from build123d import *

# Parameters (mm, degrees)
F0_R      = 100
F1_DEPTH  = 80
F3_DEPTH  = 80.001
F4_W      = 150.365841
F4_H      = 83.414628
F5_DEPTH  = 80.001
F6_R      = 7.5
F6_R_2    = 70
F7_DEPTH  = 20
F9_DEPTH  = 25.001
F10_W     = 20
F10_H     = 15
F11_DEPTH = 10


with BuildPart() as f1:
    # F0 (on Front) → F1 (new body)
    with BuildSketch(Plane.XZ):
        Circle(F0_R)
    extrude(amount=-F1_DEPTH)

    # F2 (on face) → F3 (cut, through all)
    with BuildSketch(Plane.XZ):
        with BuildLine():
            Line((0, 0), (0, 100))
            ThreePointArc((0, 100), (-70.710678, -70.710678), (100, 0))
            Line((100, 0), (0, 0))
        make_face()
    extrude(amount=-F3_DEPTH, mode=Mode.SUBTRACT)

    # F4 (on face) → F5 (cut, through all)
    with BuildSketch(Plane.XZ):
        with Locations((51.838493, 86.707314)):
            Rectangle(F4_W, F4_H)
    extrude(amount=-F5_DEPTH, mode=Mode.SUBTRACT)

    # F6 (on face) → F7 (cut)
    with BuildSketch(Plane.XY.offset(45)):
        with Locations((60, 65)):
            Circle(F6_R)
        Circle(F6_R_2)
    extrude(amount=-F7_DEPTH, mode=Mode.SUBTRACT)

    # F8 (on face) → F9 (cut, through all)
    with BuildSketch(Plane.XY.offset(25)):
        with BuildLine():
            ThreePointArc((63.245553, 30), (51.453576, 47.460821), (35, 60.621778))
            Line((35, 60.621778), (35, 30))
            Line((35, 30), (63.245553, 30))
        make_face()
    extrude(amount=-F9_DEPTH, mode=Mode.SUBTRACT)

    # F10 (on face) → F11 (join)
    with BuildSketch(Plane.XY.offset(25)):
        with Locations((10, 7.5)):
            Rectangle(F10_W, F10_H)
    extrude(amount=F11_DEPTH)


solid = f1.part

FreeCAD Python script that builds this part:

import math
import FreeCAD as App
import Part
import Sketcher
Q = App.Units.Quantity


def add_polygon(sketch, points):
    """Adds a closed chain of lines whose ends are joined by coincident constraints."""
    first, n = sketch.GeometryCount, len(points)
    for a, b in zip(points, points[1:] + points[:1]):
        sketch.addGeometry(Part.LineSegment(App.Vector(*a, 0), App.Vector(*b, 0)), False)
    for i in range(n):
        sketch.addConstraint(Sketcher.Constraint("Coincident", first + i, 2, first + (i + 1) % n, 1))

doc = App.newDocument("Part")
body = doc.addObject("PartDesign::Body", "Body")

sketch1 = body.newObject("Sketcher::SketchObject", "Sketch")
sketch1.AttachmentSupport = (doc.getObject("XZ_Plane"), [""])
sketch1.MapMode = "FlatFace"
sketch1.addGeometry(Part.Circle(App.Vector(0, 0, 0), App.Vector(0, 0, 1), 100), False)
sketch1.addConstraint([
    Sketcher.Constraint("Coincident", 0, 3, -1, 1),
    Sketcher.Constraint("Diameter", 0, Q("200 mm")),
])
pad1 = body.newObject("PartDesign::Pad", "Pad")
pad1.Profile = sketch1
pad1.Length = 80
pad1.Reversed = True

sketch2 = body.newObject("Sketcher::SketchObject", "Sketch001")
sketch2.AttachmentSupport = (doc.getObject("XZ_Plane"), [""])
sketch2.MapMode = "FlatFace"
sketch2.addGeometry([
    Part.LineSegment(App.Vector(0, 0, 0), App.Vector(0, 100, 0)),
    Part.ArcOfCircle(Part.Circle(App.Vector(0, 0, 0), App.Vector(0, 0, 1), 100), math.radians(90), math.radians(360)),
    Part.LineSegment(App.Vector(100, 0, 0), App.Vector(0, 0, 0)),
], False)
sketch2.addConstraint([
    Sketcher.Constraint("Coincident", 0, 2, 1, 1),
    Sketcher.Constraint("Coincident", 1, 2, 2, 1),
    Sketcher.Constraint("Coincident", 2, 2, 0, 1),
    Sketcher.Constraint("Vertical", 0),
    Sketcher.Constraint("Horizontal", 2),
    Sketcher.Constraint("Coincident", 1, 3, -1, 1),
    Sketcher.Constraint("Coincident", 2, 2, -1, 1),
    Sketcher.Constraint("Radius", 1, Q("100 mm")),
])
pocket1 = body.newObject("PartDesign::Pocket", "Pocket")
pocket1.Profile = sketch2
pocket1.Type = "ThroughAll"

sketch3 = body.newObject("Sketcher::SketchObject", "Sketch002")
sketch3.AttachmentSupport = (doc.getObject("XZ_Plane"), [""])
sketch3.MapMode = "FlatFace"
add_polygon(sketch3, [(-23, 128), (-23, 45), (127, 45), (127, 128)])
sketch3.addConstraint([
    Sketcher.Constraint("Vertical", 0),
    Sketcher.Constraint("Horizontal", 1),
    Sketcher.Constraint("Vertical", 2),
    Sketcher.Constraint("Horizontal", 3),
    Sketcher.Constraint("DistanceY", -1, 1, 0, 2, Q("45 mm")),
    Sketcher.Constraint("DistanceX", 1, 1, 1, 2, Q("150.365841 mm")),
    Sketcher.Constraint("DistanceY", 0, 2, 0, 1, Q("83.414628 mm")),
    Sketcher.Constraint("DistanceX", 0, 2, -1, 1, Q("23.344427 mm")),
])
pocket2 = body.newObject("PartDesign::Pocket", "Pocket001")
pocket2.Profile = sketch3
pocket2.Type = "ThroughAll"

sketch4 = body.newObject("Sketcher::SketchObject", "Sketch003")
sketch4.AttachmentSupport = (doc.getObject("XY_Plane"), [""])
sketch4.MapMode = "FlatFace"
sketch4.AttachmentOffset = App.Placement(App.Vector(0, 0, 45), App.Rotation())
sketch4.addGeometry([
    Part.Circle(App.Vector(60, 65, 0), App.Vector(0, 0, 1), 8),
    Part.Circle(App.Vector(0, 0, 0), App.Vector(0, 0, 1), 70),
], False)
sketch4.addConstraint([
    Sketcher.Constraint("Coincident", 1, 3, -1, 1),
    Sketcher.Constraint("Diameter", 0, Q("15 mm")),
    Sketcher.Constraint("Diameter", 1, Q("140 mm")),
    Sketcher.Constraint("DistanceX", -1, 1, 0, 3, Q("60 mm")),
    Sketcher.Constraint("DistanceY", -1, 1, 0, 3, Q("65 mm")),
])
pocket3 = body.newObject("PartDesign::Pocket", "Pocket002")
pocket3.Profile = sketch4
pocket3.Length = 20

sketch5 = body.newObject("Sketcher::SketchObject", "Sketch004")
sketch5.AttachmentSupport = (doc.getObject("XY_Plane"), [""])
sketch5.MapMode = "FlatFace"
sketch5.AttachmentOffset = App.Placement(App.Vector(0, 0, 25), App.Rotation())
sketch5.addGeometry([
    Part.ArcOfCircle(Part.Circle(App.Vector(0, 0, 0), App.Vector(0, 0, 1), 70), math.radians(25), math.radians(60)),
    Part.LineSegment(App.Vector(35, 61, 0), App.Vector(35, 30, 0)),
    Part.LineSegment(App.Vector(35, 30, 0), App.Vector(63, 30, 0)),
], False)
sketch5.addConstraint([
    Sketcher.Constraint("Coincident", 0, 2, 1, 1),
    Sketcher.Constraint("Coincident", 1, 2, 2, 1),
    Sketcher.Constraint("Coincident", 2, 2, 0, 1),
    Sketcher.Constraint("Vertical", 1),
    Sketcher.Constraint("Horizontal", 2),
    Sketcher.Constraint("Coincident", 0, 3, -1, 1),
    Sketcher.Constraint("DistanceX", -1, 1, 0, 2, Q("35 mm")),
    Sketcher.Constraint("DistanceY", -1, 1, 1, 2, Q("30 mm")),
    Sketcher.Constraint("Radius", 0, Q("69.999993 mm")),
])
pocket4 = body.newObject("PartDesign::Pocket", "Pocket003")
pocket4.Profile = sketch5
pocket4.Type = "ThroughAll"

sketch6 = body.newObject("Sketcher::SketchObject", "Sketch005")
sketch6.AttachmentSupport = (doc.getObject("XY_Plane"), [""])
sketch6.MapMode = "FlatFace"
sketch6.AttachmentOffset = App.Placement(App.Vector(0, 0, 25), App.Rotation())
add_polygon(sketch6, [(0, 15), (0, 0), (20, 0), (20, 15)])
sketch6.addConstraint([
    Sketcher.Constraint("Vertical", 0),
    Sketcher.Constraint("Horizontal", 1),
    Sketcher.Constraint("Vertical", 2),
    Sketcher.Constraint("Horizontal", 3),
    Sketcher.Constraint("Coincident", 0, 2, -1, 1),
    Sketcher.Constraint("DistanceX", 1, 1, 1, 2, Q("20 mm")),
    Sketcher.Constraint("DistanceY", 0, 2, 0, 1, Q("15 mm")),
])
pad2 = body.newObject("PartDesign::Pad", "Pad001")
pad2.Profile = sketch6
pad2.Length = 10

doc.recompute()
